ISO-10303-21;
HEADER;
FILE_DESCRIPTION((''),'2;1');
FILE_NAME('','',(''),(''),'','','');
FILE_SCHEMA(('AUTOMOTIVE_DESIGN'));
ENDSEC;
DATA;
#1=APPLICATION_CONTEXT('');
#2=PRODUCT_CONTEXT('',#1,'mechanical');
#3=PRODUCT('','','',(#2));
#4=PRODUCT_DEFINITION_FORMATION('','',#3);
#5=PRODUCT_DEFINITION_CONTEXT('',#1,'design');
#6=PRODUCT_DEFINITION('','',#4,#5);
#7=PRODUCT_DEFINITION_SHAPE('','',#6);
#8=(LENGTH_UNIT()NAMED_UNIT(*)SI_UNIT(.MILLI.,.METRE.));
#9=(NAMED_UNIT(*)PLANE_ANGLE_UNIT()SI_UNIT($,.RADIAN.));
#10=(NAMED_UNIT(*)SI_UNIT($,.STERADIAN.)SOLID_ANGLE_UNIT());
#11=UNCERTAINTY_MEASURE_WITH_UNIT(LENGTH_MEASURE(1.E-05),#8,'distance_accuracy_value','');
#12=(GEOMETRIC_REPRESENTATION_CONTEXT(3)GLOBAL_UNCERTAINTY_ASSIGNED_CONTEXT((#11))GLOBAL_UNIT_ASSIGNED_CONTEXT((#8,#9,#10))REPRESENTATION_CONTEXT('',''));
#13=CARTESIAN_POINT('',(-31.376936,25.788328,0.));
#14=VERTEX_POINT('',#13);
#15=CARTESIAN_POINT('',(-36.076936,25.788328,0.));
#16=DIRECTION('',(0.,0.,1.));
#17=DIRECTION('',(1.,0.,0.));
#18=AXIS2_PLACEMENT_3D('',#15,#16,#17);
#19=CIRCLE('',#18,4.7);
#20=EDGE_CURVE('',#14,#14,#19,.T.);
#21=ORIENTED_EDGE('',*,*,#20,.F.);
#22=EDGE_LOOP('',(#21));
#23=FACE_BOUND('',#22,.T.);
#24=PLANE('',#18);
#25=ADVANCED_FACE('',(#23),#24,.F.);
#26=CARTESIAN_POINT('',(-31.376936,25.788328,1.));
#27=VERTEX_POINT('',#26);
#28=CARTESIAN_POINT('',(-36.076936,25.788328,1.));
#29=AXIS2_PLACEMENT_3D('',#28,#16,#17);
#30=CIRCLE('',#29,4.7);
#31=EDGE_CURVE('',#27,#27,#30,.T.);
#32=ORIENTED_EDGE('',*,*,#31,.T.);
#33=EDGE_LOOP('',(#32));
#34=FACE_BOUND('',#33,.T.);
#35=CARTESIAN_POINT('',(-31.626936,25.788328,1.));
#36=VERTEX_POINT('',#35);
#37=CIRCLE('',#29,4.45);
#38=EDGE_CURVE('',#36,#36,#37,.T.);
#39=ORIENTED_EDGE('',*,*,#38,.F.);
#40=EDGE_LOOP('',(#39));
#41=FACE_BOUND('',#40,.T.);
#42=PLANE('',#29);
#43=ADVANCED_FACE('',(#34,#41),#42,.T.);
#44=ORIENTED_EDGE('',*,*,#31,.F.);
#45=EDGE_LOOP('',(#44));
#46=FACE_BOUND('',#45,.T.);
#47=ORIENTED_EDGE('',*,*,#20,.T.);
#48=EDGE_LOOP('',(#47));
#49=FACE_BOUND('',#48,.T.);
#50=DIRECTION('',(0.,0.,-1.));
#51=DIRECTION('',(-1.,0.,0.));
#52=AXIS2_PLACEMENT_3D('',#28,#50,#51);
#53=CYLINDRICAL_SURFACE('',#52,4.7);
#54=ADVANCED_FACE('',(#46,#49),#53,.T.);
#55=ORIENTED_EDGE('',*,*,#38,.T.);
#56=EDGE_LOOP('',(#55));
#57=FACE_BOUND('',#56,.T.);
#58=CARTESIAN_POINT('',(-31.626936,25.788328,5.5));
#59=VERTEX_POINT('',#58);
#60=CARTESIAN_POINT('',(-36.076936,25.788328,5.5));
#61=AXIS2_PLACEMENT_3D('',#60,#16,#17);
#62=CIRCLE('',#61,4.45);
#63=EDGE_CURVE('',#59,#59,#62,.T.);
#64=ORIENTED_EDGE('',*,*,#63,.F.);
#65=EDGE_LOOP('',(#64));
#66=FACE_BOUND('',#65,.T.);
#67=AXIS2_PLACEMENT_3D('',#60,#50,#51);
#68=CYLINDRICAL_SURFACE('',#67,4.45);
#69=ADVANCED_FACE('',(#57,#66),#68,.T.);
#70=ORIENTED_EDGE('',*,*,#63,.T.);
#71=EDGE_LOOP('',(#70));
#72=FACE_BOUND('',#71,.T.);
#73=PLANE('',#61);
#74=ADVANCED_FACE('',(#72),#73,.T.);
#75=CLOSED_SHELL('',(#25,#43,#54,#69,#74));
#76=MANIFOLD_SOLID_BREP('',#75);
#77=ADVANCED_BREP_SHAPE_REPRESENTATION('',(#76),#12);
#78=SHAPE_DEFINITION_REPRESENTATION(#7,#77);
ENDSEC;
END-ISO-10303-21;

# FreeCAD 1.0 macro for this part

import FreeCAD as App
import Part
import Sketcher
from FreeCAD import Vector

doc = App.newDocument("Part")
body = doc.addObject("PartDesign::Body", "Body")

# Sketch on XY plane
sketch1 = body.newObject("Sketcher::SketchObject", "Sketch")
sketch1.AttachmentSupport = (doc.getObject("XY_Plane"), [""])
sketch1.MapMode = "FlatFace"
sketch1.addGeometry(Part.Circle(Vector(-36.1, 25.8, 0), Vector(0, 0, 1), 4.7), False)
sketch1.addConstraint(Sketcher.Constraint("Diameter", 0, 9.4))
sketch1.addConstraint(Sketcher.Constraint("DistanceY", -1, 1, 0, 3, 25.788328))
sketch1.addConstraint(Sketcher.Constraint("DistanceX", 0, 3, -1, 1, 36.076936))
pad1 = body.newObject("PartDesign::Pad", "Pad")
pad1.Profile = sketch1
pad1.Length = 1

# Sketch on XY plane
sketch2 = body.newObject("Sketcher::SketchObject", "Sketch001")
sketch2.AttachmentSupport = (doc.getObject("XY_Plane"), [""])
sketch2.MapMode = "FlatFace"
sketch2.AttachmentOffset = App.Placement(Vector(0, 0, 1), App.Rotation())
sketch2.addGeometry(Part.Circle(Vector(-36.1, 25.8, 0), Vector(0, 0, 1), 4.5), False)
sketch2.addConstraint(Sketcher.Constraint("Diameter", 0, 8.9))
sketch2.addConstraint(Sketcher.Constraint("DistanceY", -1, 1, 0, 3, 25.788328))
sketch2.addConstraint(Sketcher.Constraint("DistanceX", 0, 3, -1, 1, 36.076936))
pad2 = body.newObject("PartDesign::Pad", "Pad001")
pad2.Profile = sketch2
pad2.Length = 4.5

doc.recompute()
